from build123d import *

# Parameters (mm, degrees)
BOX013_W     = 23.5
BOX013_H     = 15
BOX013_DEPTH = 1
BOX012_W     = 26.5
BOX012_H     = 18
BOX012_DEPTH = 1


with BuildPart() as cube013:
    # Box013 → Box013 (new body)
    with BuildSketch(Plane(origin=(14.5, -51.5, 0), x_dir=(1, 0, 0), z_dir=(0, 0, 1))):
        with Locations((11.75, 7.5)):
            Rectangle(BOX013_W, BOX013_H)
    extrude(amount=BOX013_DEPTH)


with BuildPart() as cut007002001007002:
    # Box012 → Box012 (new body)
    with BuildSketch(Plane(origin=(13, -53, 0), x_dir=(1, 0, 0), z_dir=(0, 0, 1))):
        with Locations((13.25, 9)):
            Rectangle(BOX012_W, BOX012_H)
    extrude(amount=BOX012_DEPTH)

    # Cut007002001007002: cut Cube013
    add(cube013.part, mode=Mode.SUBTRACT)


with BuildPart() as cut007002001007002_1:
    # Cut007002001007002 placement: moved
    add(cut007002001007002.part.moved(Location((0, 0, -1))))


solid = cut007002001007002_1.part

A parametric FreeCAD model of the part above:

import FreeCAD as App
import Part
import Sketcher
from FreeCAD import Vector

doc = App.newDocument("Part")
body = doc.addObject("PartDesign::Body", "Body")

# Sketch on XY plane
sketch1 = body.newObject("Sketcher::SketchObject", "Sketch")
sketch1.AttachmentSupport = (doc.getObject("XY_Plane"), [""])
sketch1.MapMode = "FlatFace"
sketch1.addGeometry(Part.LineSegment(Vector(14, -36, 0), Vector(14, -52, 0)), False)
sketch1.addGeometry(Part.LineSegment(Vector(14, -52, 0), Vector(38, -52, 0)), False)
sketch1.addGeometry(Part.LineSegment(Vector(38, -52, 0), Vector(38, -36, 0)), False)
sketch1.addGeometry(Part.LineSegment(Vector(38, -36, 0), Vector(14, -36, 0)), False)
sketch1.addConstraint(Sketcher.Constraint("Coincident", 0, 2, 1, 1))
sketch1.addConstraint(Sketcher.Constraint("Coincident", 1, 2, 2, 1))
sketch1.addConstraint(Sketcher.Constraint("Coincident", 2, 2, 3, 1))
sketch1.addConstraint(Sketcher.Constraint("Coincident", 3, 2, 0, 1))
sketch1.addConstraint(Sketcher.Constraint("Vertical", 0))
sketch1.addConstraint(Sketcher.Constraint("Horizontal", 1))
sketch1.addConstraint(Sketcher.Constraint("Vertical", 2))
sketch1.addConstraint(Sketcher.Constraint("Horizontal", 3))
sketch1.addConstraint(Sketcher.Constraint("DistanceY", 0, 2, 0, 1, 15.0))
sketch1.addConstraint(Sketcher.Constraint("DistanceX", 1, 1, 1, 2, 23.5))
sketch1.addConstraint(Sketcher.Constraint("DistanceX", -1, 1, 1, 2, 38.0))
sketch1.addConstraint(Sketcher.Constraint("DistanceY", 0, 2, -1, 1, 51.5))
pad1 = body.newObject("PartDesign::Pad", "Pad")
pad1.Profile = sketch1
pad1.Length = 1
body2 = doc.addObject("PartDesign::Body", "Body001")

# Sketch on XY plane
sketch2 = body2.newObject("Sketcher::SketchObject", "Sketch001")
sketch2.AttachmentSupport = (doc.getObject("XY_Plane001"), [""])
sketch2.MapMode = "FlatFace"
sketch2.addGeometry(Part.LineSegment(Vector(13, -35, 0), Vector(13, -53, 0)), False)
sketch2.addGeometry(Part.LineSegment(Vector(13, -53, 0), Vector(40, -53, 0)), False)
sketch2.addGeometry(Part.LineSegment(Vector(40, -53, 0), Vector(40, -35, 0)), False)
sketch2.addGeometry(Part.LineSegment(Vector(40, -35, 0), Vector(13, -35, 0)), False)
sketch2.addConstraint(Sketcher.Constraint("Coincident", 0, 2, 1, 1))
sketch2.addConstraint(Sketcher.Constraint("Coincident", 1, 2, 2, 1))
sketch2.addConstraint(Sketcher.Constraint("Coincident", 2, 2, 3, 1))
sketch2.addConstraint(Sketcher.Constraint("Coincident", 3, 2, 0, 1))
sketch2.addConstraint(Sketcher.Constraint("Vertical", 0))
sketch2.addConstraint(Sketcher.Constraint("Horizontal", 1))
sketch2.addConstraint(Sketcher.Constraint("Vertical", 2))
sketch2.addConstraint(Sketcher.Constraint("Horizontal", 3))
sketch2.addConstraint(Sketcher.Constraint("DistanceY", 0, 2, 0, 1, 18.0))
sketch2.addConstraint(Sketcher.Constraint("DistanceX", 1, 1, 1, 2, 26.5))
sketch2.addConstraint(Sketcher.Constraint("DistanceX", -1, 1, 0, 2, 13.0))
sketch2.addConstraint(Sketcher.Constraint("DistanceY", 0, 2, -1, 1, 53.0))
pad2 = body2.newObject("PartDesign::Pad", "Pad001")
pad2.Profile = sketch2
pad2.Length = 1
doc.recompute()

boolean = body2.newObject("PartDesign::Boolean", "Boolean")
boolean.Type = "Cut"
boolean.addObjects([body])
body3 = doc.addObject("PartDesign::Body", "Body002")
doc.recompute()

body2.Placement = App.Placement(Vector(0, 0, -1), App.Rotation(Vector(0, 0, 1), 0))
boolean2 = body3.newObject("PartDesign::Boolean", "Boolean001")
boolean2.Type = "Fuse"
boolean2.addObjects([body2])

doc.recompute()
